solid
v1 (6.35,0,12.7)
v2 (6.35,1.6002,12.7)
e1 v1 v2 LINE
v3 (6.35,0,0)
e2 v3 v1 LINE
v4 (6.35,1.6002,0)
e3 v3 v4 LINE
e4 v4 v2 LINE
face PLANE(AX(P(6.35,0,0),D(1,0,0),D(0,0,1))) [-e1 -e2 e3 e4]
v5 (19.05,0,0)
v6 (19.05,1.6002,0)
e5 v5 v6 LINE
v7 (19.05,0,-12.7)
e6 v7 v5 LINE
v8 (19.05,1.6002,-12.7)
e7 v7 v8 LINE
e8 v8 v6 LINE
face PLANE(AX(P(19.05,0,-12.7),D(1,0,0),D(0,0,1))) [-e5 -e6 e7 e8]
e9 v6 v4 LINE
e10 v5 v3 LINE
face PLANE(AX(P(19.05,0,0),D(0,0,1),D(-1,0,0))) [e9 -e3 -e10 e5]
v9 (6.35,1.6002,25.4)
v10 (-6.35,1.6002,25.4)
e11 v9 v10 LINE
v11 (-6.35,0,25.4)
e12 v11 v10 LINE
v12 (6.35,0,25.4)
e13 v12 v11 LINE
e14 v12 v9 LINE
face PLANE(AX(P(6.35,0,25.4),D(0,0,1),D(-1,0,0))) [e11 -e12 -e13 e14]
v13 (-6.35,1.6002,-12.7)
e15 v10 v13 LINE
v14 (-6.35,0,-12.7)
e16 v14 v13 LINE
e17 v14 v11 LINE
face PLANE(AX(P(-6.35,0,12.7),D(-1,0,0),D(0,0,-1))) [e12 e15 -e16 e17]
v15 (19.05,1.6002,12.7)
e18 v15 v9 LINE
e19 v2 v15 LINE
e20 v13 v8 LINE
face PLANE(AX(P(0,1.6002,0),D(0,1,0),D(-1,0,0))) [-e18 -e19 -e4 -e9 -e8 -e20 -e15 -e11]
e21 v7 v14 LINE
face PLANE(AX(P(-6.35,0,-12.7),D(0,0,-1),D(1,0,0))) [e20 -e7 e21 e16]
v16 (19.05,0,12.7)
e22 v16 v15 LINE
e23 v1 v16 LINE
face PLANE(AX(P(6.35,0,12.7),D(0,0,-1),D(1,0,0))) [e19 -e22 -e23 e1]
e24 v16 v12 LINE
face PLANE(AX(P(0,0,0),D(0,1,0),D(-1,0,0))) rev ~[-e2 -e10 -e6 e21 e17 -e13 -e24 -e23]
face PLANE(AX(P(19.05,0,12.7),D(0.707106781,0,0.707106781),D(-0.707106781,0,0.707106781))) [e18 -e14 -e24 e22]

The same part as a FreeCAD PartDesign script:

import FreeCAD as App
import Part
import Sketcher
Q = App.Units.Quantity

doc = App.newDocument("Part")
body = doc.addObject("PartDesign::Body", "Body")

sketch1 = body.newObject("Sketcher::SketchObject", "Sketch")
sketch1.AttachmentSupport = (doc.getObject("XZ_Plane"), [""])
sketch1.MapMode = "FlatFace"
sketch1.addGeometry([
    Part.LineSegment(App.Vector(-6, -13, 0), App.Vector(-6, 25, 0)),
    Part.LineSegment(App.Vector(-6, 25, 0), App.Vector(6, 25, 0)),
    Part.LineSegment(App.Vector(6, 25, 0), App.Vector(19, 13, 0)),
    Part.LineSegment(App.Vector(19, 13, 0), App.Vector(6, 13, 0)),
    Part.LineSegment(App.Vector(6, 13, 0), App.Vector(6, 0, 0)),
    Part.LineSegment(App.Vector(6, 0, 0), App.Vector(19, 0, 0)),
    Part.LineSegment(App.Vector(19, 0, 0), App.Vector(19, -13, 0)),
    Part.LineSegment(App.Vector(19, -13, 0), App.Vector(-6, -13, 0)),
], False)
sketch1.addConstraint([
    Sketcher.Constraint("Coincident", 0, 2, 1, 1),
    Sketcher.Constraint("Coincident", 1, 2, 2, 1),
    Sketcher.Constraint("Coincident", 2, 2, 3, 1),
    Sketcher.Constraint("Coincident", 3, 2, 4, 1),
    Sketcher.Constraint("Coincident", 4, 2, 5, 1),
    Sketcher.Constraint("Coincident", 5, 2, 6, 1),
    Sketcher.Constraint("Coincident", 6, 2, 7, 1),
    Sketcher.Constraint("Coincident", 7, 2, 0, 1),
    Sketcher.Constraint("Vertical", 0),
    Sketcher.Constraint("Horizontal", 1),
    Sketcher.Constraint("Horizontal", 3),
    Sketcher.Constraint("Vertical", 4),
    Sketcher.Constraint("Horizontal", 5),
    Sketcher.Constraint("Vertical", 6),
    Sketcher.Constraint("Horizontal", 7),
    Sketcher.Constraint("Symmetric", 3, 2, 7, 2, -1, 1),
    Sketcher.Constraint("PointOnObject", 4, 2, -1),
    Sketcher.Constraint("Vertical", 1, 2, 3, 2),
    Sketcher.Constraint("Vertical", 2, 2, 5, 2),
    Sketcher.Constraint("Equal", 1, 3),
    Sketcher.Constraint("Equal", 5, 4),
    Sketcher.Constraint("DistanceX", 7, 2, 7, 1, Q("1 in")),
    Sketcher.Constraint("DistanceY", -1, 1, 0, 2, Q("1 in")),
])
pad1 = body.newObject("PartDesign::Pad", "Pad")
pad1.Profile = sketch1
pad1.Length = Q("0.063 in")
pad1.Reversed = True

doc.recompute()
